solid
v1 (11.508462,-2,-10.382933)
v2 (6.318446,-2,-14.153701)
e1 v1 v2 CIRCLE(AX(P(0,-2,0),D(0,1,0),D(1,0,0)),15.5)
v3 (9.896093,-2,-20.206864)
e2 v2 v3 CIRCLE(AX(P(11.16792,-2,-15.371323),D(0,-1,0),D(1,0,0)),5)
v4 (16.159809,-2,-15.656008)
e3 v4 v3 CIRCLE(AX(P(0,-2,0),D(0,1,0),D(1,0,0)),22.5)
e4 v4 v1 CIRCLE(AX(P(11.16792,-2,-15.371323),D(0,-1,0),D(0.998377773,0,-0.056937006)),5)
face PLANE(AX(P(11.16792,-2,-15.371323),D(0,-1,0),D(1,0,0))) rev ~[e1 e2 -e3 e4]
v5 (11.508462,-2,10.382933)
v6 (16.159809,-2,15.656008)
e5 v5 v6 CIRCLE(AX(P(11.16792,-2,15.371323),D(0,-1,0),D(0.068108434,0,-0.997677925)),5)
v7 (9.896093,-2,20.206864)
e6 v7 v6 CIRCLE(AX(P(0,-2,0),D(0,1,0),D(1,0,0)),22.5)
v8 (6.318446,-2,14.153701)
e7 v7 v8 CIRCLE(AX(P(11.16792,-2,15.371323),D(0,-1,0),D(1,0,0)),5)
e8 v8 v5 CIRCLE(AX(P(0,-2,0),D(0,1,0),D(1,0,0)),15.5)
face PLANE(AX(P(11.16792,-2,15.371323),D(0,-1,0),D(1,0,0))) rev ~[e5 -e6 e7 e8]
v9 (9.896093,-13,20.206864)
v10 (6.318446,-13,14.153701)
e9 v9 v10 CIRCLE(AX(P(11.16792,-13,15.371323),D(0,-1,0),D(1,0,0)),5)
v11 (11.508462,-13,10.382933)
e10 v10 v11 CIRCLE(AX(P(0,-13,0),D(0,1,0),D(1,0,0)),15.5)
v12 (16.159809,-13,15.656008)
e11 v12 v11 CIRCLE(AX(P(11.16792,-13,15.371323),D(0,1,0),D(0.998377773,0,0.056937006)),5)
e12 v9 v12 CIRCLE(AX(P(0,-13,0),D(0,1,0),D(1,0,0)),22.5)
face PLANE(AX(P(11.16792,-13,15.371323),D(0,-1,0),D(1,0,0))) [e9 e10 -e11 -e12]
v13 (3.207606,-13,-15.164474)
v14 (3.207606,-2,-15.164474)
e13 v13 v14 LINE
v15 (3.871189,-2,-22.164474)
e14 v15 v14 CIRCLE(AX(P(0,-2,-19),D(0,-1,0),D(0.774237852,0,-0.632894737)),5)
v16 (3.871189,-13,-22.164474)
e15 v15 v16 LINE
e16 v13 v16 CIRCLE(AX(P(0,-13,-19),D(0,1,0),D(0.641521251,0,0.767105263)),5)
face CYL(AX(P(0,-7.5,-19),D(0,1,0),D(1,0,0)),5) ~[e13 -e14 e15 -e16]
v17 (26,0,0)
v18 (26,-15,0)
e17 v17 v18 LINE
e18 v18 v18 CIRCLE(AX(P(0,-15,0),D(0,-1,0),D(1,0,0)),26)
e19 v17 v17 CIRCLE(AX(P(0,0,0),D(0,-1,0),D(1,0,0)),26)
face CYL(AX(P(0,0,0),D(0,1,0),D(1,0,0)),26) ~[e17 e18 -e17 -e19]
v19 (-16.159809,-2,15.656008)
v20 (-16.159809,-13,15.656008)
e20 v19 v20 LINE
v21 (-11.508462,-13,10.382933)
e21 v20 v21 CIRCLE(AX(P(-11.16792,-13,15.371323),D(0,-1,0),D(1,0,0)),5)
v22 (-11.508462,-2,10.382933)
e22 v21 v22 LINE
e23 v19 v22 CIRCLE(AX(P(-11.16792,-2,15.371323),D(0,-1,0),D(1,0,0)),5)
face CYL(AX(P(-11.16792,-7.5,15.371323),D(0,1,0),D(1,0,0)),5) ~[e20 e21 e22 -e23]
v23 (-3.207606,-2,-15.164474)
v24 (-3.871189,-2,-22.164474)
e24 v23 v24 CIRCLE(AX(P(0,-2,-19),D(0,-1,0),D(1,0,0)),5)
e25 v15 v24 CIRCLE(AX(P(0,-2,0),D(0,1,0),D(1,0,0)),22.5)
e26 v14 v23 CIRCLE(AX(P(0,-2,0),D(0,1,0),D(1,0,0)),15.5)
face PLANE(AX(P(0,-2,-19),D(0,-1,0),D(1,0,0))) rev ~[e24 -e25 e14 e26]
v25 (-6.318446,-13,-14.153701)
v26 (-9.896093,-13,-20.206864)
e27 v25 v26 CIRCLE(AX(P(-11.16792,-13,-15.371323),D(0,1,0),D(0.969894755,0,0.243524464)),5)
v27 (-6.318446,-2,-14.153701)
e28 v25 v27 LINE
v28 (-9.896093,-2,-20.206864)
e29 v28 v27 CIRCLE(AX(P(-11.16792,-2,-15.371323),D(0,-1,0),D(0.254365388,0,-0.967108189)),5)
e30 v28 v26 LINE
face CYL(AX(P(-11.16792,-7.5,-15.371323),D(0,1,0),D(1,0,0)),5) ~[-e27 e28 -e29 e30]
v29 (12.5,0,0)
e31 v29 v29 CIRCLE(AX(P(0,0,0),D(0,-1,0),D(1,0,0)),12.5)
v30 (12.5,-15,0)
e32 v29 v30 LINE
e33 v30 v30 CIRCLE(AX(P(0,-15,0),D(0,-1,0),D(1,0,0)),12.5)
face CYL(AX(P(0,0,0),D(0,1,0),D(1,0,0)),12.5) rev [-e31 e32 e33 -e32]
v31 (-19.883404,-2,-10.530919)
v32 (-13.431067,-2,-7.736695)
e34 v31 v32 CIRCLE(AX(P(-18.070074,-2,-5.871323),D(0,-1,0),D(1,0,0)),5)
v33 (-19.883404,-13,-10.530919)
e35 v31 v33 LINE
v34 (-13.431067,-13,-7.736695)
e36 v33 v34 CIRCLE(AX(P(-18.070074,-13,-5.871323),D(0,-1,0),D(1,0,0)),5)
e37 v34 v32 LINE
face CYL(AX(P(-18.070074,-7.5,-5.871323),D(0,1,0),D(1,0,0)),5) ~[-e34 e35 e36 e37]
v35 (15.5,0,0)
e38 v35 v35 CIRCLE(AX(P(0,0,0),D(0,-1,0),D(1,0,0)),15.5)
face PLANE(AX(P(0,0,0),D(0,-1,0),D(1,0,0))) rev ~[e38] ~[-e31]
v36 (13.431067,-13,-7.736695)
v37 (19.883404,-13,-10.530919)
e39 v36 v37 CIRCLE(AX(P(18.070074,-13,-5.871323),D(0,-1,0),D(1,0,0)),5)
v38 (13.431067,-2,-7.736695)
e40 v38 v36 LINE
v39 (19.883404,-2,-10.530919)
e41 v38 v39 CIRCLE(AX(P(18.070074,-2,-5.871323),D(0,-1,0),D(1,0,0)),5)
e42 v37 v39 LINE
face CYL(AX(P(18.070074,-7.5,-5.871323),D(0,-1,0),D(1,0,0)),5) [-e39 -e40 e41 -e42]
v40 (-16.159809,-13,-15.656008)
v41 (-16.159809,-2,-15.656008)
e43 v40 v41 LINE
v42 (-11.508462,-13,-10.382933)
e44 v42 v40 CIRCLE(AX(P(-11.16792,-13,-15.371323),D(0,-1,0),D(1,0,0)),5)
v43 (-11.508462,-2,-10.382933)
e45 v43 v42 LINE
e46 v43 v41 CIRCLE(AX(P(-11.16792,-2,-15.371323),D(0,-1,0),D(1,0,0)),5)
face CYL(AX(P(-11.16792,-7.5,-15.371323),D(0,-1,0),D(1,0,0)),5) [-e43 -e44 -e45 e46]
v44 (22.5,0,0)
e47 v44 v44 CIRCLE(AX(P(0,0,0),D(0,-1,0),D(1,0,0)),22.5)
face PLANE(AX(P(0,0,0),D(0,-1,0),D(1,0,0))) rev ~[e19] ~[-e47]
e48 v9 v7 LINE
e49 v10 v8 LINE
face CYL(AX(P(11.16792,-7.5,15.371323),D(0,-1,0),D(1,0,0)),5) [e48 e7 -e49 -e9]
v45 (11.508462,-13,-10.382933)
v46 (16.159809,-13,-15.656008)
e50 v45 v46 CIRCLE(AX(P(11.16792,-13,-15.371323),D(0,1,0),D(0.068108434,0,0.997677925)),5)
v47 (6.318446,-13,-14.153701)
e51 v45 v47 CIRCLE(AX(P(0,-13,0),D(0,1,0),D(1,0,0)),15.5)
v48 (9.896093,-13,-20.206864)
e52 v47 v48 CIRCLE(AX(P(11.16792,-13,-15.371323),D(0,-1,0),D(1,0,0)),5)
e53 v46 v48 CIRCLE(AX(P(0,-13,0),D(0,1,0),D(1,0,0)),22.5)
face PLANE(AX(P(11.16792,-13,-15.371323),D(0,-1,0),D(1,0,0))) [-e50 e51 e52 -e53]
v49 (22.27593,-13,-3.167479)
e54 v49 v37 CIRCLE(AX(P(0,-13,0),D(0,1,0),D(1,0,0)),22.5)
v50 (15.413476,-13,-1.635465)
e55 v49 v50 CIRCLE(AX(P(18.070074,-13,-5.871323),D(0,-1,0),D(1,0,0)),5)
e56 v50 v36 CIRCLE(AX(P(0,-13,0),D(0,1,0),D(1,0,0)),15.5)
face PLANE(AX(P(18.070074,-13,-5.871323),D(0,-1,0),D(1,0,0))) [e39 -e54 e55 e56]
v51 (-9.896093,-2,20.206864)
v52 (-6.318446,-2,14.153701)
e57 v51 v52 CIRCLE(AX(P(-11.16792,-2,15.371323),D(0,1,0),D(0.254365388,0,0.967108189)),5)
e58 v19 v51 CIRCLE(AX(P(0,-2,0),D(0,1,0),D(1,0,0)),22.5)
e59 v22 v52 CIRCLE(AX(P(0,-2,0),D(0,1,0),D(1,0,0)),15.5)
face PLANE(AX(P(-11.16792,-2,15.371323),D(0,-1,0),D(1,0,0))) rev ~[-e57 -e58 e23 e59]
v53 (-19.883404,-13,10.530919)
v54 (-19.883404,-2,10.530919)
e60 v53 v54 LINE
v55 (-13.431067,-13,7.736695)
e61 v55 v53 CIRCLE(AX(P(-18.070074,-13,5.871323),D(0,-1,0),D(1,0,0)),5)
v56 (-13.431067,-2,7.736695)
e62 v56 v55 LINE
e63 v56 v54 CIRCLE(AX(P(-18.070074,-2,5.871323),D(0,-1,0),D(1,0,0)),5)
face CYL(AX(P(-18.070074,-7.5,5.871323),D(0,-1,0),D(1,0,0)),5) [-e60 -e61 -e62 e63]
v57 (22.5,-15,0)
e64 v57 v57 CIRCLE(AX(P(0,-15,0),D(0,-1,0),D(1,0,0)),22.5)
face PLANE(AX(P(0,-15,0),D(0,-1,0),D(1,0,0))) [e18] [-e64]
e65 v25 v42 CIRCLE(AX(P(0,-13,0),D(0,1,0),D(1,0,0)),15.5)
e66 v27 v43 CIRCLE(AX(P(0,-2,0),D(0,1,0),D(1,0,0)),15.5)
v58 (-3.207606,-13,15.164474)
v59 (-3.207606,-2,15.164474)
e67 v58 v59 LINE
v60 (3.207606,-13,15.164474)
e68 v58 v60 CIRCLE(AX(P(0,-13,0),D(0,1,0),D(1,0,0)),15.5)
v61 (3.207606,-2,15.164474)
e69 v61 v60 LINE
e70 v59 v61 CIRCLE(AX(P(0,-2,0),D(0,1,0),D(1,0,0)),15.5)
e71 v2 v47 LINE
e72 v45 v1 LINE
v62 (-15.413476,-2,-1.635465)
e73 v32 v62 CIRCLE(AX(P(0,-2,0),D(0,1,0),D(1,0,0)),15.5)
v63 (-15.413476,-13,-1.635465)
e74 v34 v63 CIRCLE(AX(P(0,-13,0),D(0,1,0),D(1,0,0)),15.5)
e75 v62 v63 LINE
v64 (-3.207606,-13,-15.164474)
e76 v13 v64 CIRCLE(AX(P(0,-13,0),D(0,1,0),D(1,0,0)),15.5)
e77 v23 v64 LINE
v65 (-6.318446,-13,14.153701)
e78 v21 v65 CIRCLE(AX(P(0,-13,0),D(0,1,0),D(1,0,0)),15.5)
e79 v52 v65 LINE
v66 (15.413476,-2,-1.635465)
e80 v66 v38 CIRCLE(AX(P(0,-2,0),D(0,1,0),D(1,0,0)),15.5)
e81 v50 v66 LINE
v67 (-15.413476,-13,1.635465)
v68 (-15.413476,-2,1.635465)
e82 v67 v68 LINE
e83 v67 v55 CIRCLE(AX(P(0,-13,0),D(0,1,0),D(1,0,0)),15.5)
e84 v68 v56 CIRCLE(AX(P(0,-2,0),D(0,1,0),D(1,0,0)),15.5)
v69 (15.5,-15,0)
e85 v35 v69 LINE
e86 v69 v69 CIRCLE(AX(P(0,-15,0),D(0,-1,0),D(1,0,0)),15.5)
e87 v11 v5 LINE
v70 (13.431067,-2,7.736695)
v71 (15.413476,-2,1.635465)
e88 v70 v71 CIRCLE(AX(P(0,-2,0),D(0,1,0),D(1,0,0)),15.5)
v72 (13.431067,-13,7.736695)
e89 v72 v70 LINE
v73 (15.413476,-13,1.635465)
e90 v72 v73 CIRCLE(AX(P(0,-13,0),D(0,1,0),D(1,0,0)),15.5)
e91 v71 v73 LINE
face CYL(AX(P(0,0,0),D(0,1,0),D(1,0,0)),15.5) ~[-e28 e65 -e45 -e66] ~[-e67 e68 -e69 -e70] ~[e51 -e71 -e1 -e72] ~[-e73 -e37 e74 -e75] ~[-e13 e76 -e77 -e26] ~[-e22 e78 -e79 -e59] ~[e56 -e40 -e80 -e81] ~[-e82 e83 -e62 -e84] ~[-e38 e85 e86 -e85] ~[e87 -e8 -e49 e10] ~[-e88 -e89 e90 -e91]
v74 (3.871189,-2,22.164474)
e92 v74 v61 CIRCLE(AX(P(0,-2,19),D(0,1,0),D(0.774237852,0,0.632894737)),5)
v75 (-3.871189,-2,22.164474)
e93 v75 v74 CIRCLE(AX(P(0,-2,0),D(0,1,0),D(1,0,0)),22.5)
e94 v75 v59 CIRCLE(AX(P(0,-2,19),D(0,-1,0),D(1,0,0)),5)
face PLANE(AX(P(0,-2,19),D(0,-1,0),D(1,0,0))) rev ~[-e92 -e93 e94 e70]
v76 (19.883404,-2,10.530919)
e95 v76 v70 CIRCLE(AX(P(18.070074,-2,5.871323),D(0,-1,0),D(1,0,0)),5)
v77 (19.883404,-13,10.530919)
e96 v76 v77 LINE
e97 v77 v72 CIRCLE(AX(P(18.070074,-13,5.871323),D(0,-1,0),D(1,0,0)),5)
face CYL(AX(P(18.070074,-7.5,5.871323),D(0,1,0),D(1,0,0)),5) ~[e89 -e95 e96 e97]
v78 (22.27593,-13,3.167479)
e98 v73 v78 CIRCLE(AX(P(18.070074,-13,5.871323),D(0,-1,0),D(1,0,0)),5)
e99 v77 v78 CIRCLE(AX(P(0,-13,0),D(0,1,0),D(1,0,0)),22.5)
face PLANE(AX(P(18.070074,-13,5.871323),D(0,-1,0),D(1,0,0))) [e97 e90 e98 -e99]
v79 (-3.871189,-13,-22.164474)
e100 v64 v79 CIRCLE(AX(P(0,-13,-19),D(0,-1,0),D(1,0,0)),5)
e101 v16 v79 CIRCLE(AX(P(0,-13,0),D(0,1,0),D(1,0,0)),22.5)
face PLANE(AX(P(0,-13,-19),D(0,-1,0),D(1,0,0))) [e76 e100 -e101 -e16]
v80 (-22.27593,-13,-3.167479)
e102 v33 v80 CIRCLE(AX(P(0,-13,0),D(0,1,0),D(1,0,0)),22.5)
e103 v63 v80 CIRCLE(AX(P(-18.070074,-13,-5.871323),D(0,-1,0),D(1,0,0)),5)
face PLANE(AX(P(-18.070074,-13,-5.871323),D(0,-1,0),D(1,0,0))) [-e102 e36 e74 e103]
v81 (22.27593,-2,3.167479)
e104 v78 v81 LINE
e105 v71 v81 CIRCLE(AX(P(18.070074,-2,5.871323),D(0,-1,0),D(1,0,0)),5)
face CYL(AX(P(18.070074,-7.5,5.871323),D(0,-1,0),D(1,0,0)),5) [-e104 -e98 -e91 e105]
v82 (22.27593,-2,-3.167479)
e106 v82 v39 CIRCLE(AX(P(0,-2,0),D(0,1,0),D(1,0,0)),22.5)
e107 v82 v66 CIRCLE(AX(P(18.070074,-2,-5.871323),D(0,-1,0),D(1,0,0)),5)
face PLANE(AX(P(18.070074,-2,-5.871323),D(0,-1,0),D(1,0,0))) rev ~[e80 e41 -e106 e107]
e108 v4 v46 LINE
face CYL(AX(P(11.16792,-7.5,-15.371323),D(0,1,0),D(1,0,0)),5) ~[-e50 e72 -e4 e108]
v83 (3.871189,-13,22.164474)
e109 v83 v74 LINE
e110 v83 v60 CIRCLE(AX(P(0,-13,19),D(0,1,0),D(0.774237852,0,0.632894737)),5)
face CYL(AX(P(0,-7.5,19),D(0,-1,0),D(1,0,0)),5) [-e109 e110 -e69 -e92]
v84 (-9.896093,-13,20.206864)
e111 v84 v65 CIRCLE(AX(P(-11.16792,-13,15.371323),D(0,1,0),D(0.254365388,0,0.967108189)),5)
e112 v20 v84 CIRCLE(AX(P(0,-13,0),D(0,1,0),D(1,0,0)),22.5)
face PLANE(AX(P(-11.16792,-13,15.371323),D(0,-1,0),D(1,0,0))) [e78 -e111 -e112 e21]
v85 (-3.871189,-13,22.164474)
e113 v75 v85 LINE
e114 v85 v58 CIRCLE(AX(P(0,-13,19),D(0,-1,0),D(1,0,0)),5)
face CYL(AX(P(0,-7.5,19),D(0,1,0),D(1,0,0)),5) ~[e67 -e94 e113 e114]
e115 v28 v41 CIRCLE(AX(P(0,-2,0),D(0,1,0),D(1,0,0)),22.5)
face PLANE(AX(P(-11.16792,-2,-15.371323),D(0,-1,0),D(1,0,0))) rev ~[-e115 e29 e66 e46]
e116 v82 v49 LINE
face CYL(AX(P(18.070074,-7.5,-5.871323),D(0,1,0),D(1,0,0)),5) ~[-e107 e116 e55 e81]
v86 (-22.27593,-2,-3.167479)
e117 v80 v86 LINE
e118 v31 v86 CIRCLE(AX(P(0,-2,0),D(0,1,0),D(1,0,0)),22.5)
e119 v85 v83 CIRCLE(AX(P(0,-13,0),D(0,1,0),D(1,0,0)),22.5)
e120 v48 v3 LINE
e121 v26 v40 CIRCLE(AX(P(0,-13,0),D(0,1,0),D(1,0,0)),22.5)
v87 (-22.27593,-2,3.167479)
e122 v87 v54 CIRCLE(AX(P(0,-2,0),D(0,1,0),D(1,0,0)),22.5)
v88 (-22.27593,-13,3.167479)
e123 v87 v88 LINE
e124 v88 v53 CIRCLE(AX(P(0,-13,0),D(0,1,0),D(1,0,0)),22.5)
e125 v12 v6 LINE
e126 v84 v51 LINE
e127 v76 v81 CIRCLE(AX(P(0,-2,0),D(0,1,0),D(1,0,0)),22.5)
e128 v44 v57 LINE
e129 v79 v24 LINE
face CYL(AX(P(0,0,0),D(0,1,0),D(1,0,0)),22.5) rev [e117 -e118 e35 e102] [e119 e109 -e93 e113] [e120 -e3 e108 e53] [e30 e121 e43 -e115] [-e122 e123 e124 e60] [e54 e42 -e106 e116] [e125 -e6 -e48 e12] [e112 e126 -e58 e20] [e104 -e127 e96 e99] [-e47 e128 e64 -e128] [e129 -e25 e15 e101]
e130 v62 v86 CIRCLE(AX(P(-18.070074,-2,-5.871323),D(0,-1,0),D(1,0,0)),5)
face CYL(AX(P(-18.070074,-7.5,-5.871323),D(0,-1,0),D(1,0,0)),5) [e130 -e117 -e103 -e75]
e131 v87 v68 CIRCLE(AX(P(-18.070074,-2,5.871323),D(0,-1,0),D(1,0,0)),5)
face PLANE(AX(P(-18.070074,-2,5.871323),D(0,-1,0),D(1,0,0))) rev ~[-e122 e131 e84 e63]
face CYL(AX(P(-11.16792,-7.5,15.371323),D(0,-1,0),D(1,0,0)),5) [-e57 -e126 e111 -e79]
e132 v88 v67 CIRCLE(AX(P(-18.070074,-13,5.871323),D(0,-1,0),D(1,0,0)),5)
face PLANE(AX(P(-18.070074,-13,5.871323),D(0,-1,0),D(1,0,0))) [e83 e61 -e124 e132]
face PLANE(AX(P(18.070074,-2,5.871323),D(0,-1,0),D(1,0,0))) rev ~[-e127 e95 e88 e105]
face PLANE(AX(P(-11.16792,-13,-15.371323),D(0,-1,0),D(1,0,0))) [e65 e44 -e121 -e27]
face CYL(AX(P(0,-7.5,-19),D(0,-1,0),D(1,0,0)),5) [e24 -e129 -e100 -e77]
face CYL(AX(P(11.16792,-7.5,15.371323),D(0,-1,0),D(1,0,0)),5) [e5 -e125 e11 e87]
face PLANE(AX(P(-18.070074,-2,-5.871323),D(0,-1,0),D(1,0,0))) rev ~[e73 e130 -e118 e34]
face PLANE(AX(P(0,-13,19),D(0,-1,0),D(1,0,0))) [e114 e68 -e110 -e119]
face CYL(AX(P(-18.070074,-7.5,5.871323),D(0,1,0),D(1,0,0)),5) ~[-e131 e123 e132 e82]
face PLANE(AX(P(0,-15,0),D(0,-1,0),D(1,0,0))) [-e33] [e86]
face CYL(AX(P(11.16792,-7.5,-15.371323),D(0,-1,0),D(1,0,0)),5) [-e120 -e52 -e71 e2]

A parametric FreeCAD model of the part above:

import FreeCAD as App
import Part
import Sketcher

V = App.Vector
Q = App.Units.Quantity

doc = App.newDocument("Part")
params = doc.addObject("Spreadsheet::Sheet", "Params")
for row, (alias, value) in enumerate([
    ("sketch1_diameter", "52 mm"),
    ("sketch1_diameter2", "45 mm"),
    ("pad1_length", "15 mm"),
    ("sketch2_diameter", "31 mm"),
    ("sketch2_diameter2", "25 mm"),
    ("pad2_length", "15 mm"),
    ("sketch3_diameter", "10 mm"),
    ("pad3_length", "11 mm"),
], start=1):
    params.set(f"A{row}", alias)
    params.set(f"B{row}", "=" + value)
    params.setAlias(f"B{row}", alias)

body = doc.addObject("PartDesign::Body", "Body")

sketch1 = body.newObject("Sketcher::SketchObject", "Sketch")
sketch1.AttachmentSupport = (doc.getObject("XZ_Plane"), [""])
sketch1.MapMode = "FlatFace"
sketch1.addGeometry(Part.Circle(V(0, 0, 0), V(0, 0, 1), 26), False)
sketch1.addGeometry(Part.Circle(V(0, 0, 0), V(0, 0, 1), 22), False)
sketch1.addConstraint(Sketcher.Constraint("Coincident", 0, 3, -1, 1))
sketch1.addConstraint(Sketcher.Constraint("Coincident", 1, 3, -1, 1))
sketch1.addConstraint(Sketcher.Constraint("Diameter", 0, Q("52 mm")))
sketch1.addConstraint(Sketcher.Constraint("Diameter", 1, Q("45 mm")))
sketch1.setExpression("Constraints[2]", "Params.sketch1_diameter")
sketch1.setExpression("Constraints[3]", "Params.sketch1_diameter2")
pad1 = body.newObject("PartDesign::Pad", "Pad")
pad1.Profile = sketch1
pad1.setExpression("Length", "Params.pad1_length")
body2 = doc.addObject("PartDesign::Body", "Body001")

sketch2 = body2.newObject("Sketcher::SketchObject", "Sketch001")
sketch2.AttachmentSupport = (doc.getObject("XZ_Plane001"), [""])
sketch2.MapMode = "FlatFace"
sketch2.addGeometry(Part.Circle(V(0, 0, 0), V(0, 0, 1), 16), False)
sketch2.addGeometry(Part.Circle(V(0, 0, 0), V(0, 0, 1), 12), False)
sketch2.addConstraint(Sketcher.Constraint("Coincident", 0, 3, -1, 1))
sketch2.addConstraint(Sketcher.Constraint("Coincident", 1, 3, -1, 1))
sketch2.addConstraint(Sketcher.Constraint("Diameter", 0, Q("31 mm")))
sketch2.addConstraint(Sketcher.Constraint("Diameter", 1, Q("25 mm")))
sketch2.setExpression("Constraints[2]", "Params.sketch2_diameter")
sketch2.setExpression("Constraints[3]", "Params.sketch2_diameter2")
pad2 = body2.newObject("PartDesign::Pad", "Pad001")
pad2.Profile = sketch2
pad2.setExpression("Length", "Params.pad2_length")
body.AllowCompound = True
doc.recompute()

boolean = body.newObject("PartDesign::Boolean", "Boolean")
boolean.Type = "Fuse"
boolean.addObjects([body2])

sketch3 = body.newObject("Sketcher::SketchObject", "Sketch002")
sketch3.AttachmentSupport = (doc.getObject("XZ_Plane"), [""])
sketch3.MapMode = "FlatFace"
sketch3.AttachmentOffset = App.Placement(V(0, 0, 7.5), App.Rotation())
sketch3.addGeometry(Part.Circle(V(-11, 15, 0), V(0, 0, 1), 5), False)
sketch3.addGeometry(Part.Circle(V(0, 19, 0), V(0, 0, 1), 5), False)
sketch3.addGeometry(Part.Circle(V(-18, 6, 0), V(0, 0, 1), 5), False)
sketch3.addGeometry(Part.Circle(V(-18, -6, 0), V(0, 0, 1), 5), False)
sketch3.addGeometry(Part.Circle(V(-11, -15, 0), V(0, 0, 1), 5), False)
sketch3.addGeometry(Part.Circle(V(0, -19, 0), V(0, 0, 1), 5), False)
sketch3.addGeometry(Part.Circle(V(11, -15, 0), V(0, 0, 1), 5), False)
sketch3.addGeometry(Part.Circle(V(18, -6, 0), V(0, 0, 1), 5), False)
sketch3.addGeometry(Part.Circle(V(18, 6, 0), V(0, 0, 1), 5), False)
sketch3.addGeometry(Part.Circle(V(11, 15, 0), V(0, 0, 1), 5), False)
sketch3.addConstraint(Sketcher.Constraint("Equal", 0, 1))
sketch3.addConstraint(Sketcher.Constraint("Equal", 1, 2))
sketch3.addConstraint(Sketcher.Constraint("Equal", 2, 3))
sketch3.addConstraint(Sketcher.Constraint("Equal", 3, 4))
sketch3.addConstraint(Sketcher.Constraint("Equal", 4, 5))
sketch3.addConstraint(Sketcher.Constraint("Equal", 5, 6))
sketch3.addConstraint(Sketcher.Constraint("Equal", 6, 7))
sketch3.addConstraint(Sketcher.Constraint("Equal", 7, 8))
sketch3.addConstraint(Sketcher.Constraint("Equal", 8, 9))
sketch3.addConstraint(Sketcher.Constraint("Symmetric", 1, 3, 5, 3, -1, 1))
sketch3.addConstraint(Sketcher.Constraint("Symmetric", 0, 3, 6, 3, -1, 1))
sketch3.addConstraint(Sketcher.Constraint("Symmetric", 2, 3, 7, 3, -1, 1))
sketch3.addConstraint(Sketcher.Constraint("Symmetric", 3, 3, 8, 3, -1, 1))
sketch3.addConstraint(Sketcher.Constraint("Symmetric", 4, 3, 9, 3, -1, 1))
sketch3.addConstraint(Sketcher.Constraint("Symmetric", 4, 3, 6, 3, -2))
sketch3.addConstraint(Sketcher.Constraint("Symmetric", 3, 3, 7, 3, -2))
sketch3.addConstraint(Sketcher.Constraint("PointOnObject", 1, 3, -2))
sketch3.addConstraint(Sketcher.Constraint("Diameter", 0, Q("10 mm")))
sketch3.addConstraint(Sketcher.Constraint("DistanceY", -1, 1, 1, 3, Q("19 mm")))
sketch3.addConstraint(Sketcher.Constraint("DistanceY", 2, 3, 0, 3, Q("9.5 mm")))
sketch3.addConstraint(Sketcher.Constraint("DistanceX", 0, 3, -1, 1, Q("11.16792 mm")))
sketch3.addConstraint(Sketcher.Constraint("DistanceY", -1, 1, 0, 3, Q("15.371323 mm")))
sketch3.addConstraint(Sketcher.Constraint("DistanceX", 2, 3, -1, 1, Q("18.070074 mm")))
sketch3.setExpression("Constraints[17]", "Params.sketch3_diameter")
pad3 = body.newObject("PartDesign::Pad", "Pad002")
pad3.Profile = sketch3
pad3.setExpression("Length", "Params.pad3_length")
pad3.Midplane = True

doc.recompute()
